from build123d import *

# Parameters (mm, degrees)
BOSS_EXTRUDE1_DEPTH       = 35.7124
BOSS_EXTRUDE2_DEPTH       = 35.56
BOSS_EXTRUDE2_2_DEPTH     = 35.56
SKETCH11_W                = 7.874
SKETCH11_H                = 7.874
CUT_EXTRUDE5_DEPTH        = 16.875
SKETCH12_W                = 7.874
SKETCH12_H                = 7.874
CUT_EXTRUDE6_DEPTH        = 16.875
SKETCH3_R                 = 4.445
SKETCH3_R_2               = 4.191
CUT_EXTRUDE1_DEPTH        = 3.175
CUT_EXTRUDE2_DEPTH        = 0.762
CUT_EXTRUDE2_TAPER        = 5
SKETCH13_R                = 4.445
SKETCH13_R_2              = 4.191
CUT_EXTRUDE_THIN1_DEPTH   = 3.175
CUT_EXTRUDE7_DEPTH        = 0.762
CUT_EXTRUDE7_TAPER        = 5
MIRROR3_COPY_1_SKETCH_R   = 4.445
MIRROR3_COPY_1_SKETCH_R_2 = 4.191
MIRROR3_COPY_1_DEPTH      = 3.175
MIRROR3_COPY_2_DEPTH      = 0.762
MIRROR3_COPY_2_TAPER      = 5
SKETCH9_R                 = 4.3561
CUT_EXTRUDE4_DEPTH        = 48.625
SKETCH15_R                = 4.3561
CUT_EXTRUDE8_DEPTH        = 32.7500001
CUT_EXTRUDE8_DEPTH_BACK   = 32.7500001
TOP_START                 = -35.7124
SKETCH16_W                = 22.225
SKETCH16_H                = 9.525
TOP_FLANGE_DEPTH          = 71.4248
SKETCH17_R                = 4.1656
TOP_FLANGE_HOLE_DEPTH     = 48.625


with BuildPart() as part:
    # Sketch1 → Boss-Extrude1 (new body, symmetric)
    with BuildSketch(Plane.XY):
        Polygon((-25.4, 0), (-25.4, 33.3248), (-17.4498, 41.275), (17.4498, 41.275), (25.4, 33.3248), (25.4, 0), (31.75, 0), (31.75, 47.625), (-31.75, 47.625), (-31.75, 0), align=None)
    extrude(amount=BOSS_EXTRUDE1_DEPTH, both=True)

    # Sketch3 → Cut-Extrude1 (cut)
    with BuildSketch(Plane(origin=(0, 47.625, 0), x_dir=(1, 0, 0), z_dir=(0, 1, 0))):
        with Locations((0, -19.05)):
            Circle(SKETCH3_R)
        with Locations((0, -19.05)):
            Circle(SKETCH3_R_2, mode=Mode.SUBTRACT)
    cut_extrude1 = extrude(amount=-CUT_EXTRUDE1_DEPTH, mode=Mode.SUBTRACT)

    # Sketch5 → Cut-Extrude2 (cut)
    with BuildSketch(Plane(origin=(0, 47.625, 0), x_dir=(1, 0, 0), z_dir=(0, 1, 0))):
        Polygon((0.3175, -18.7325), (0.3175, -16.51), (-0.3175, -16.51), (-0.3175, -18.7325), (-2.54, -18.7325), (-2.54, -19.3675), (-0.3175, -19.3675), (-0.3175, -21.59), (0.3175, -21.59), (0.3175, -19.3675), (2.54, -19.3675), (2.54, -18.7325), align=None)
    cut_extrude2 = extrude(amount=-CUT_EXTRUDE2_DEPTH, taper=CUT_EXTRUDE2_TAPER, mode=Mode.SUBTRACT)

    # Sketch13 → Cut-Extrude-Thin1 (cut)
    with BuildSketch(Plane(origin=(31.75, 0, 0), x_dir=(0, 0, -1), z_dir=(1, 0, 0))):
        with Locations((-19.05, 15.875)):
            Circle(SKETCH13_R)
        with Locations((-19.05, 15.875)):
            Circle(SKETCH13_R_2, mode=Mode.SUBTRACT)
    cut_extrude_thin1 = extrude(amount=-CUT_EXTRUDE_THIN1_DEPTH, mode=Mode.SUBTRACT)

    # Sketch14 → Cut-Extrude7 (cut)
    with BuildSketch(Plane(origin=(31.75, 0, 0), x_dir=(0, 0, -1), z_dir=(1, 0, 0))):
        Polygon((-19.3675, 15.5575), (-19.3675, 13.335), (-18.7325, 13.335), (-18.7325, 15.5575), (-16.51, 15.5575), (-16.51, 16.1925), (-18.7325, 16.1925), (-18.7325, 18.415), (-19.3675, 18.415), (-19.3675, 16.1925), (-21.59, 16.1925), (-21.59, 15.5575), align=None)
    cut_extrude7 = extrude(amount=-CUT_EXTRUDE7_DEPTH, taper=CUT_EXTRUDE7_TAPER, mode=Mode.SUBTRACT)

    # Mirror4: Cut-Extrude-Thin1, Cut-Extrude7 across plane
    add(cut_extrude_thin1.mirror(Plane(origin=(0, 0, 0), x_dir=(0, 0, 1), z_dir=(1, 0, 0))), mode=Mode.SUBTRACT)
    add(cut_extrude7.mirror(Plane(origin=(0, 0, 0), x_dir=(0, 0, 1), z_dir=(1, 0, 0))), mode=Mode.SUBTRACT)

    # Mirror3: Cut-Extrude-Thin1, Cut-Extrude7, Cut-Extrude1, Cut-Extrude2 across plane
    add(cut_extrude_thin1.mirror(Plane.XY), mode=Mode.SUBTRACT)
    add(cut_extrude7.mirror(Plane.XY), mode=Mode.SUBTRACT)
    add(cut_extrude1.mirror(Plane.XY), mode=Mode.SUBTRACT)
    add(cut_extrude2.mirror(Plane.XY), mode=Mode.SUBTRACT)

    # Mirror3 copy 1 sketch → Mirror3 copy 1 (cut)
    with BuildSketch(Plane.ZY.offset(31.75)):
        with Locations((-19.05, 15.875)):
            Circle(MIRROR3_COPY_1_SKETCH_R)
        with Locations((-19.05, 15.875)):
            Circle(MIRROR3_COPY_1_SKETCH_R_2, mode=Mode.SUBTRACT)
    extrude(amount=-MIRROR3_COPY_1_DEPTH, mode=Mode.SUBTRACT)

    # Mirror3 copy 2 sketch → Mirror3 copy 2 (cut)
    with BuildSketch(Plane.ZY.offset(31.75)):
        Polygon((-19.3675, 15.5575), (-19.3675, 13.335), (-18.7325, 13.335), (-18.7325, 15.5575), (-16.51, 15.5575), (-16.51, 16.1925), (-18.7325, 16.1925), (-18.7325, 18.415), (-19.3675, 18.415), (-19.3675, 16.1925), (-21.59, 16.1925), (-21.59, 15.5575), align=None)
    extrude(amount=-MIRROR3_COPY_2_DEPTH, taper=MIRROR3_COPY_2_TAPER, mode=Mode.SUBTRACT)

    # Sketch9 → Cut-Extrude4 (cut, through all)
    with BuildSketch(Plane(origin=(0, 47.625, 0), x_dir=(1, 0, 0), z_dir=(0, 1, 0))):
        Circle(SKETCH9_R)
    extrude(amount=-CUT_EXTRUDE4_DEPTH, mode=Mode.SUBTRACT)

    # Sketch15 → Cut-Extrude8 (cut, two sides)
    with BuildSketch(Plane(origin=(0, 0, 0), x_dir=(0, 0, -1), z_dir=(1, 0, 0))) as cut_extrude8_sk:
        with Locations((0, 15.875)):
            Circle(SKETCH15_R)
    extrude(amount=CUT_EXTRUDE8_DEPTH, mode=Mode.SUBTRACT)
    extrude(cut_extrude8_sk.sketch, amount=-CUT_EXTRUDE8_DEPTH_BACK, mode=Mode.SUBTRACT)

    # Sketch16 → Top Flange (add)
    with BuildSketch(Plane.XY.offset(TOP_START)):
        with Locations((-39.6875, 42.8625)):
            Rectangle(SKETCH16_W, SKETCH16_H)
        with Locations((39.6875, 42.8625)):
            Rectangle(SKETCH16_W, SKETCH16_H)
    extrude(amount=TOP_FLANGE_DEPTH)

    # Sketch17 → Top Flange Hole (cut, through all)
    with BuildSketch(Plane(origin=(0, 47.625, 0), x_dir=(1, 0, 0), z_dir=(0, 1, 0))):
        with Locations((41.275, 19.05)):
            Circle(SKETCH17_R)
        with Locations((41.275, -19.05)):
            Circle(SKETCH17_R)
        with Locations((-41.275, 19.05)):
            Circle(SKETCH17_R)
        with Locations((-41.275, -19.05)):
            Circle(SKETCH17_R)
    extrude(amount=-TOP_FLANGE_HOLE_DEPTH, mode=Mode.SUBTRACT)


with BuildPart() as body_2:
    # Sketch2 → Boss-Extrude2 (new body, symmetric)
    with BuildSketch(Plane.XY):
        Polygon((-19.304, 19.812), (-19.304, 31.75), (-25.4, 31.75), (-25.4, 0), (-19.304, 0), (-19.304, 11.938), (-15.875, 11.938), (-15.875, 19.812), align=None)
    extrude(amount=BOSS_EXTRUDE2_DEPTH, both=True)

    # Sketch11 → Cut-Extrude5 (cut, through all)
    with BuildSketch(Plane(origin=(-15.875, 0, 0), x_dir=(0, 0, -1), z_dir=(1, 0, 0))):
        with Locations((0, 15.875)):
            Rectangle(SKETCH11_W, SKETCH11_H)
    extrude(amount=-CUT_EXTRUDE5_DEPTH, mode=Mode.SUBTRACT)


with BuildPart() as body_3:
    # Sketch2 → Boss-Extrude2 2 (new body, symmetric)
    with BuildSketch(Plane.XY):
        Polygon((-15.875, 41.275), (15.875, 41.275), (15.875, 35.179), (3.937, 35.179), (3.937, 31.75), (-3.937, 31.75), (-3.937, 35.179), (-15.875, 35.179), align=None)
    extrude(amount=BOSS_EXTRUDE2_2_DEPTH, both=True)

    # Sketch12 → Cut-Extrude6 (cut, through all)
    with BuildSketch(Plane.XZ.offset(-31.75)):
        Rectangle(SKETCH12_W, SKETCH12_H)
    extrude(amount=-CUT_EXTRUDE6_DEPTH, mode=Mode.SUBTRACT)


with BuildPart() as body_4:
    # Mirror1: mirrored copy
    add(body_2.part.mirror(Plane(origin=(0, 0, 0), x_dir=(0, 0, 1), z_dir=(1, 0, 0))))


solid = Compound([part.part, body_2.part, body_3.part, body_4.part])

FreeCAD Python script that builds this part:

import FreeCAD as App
import Part
import Sketcher

V = App.Vector
Q = App.Units.Quantity


def add_polygon(sketch, points):
    """Adds a closed chain of lines whose ends are joined by coincident constraints."""
    first, n = sketch.GeometryCount, len(points)
    for a, b in zip(points, points[1:] + points[:1]):
        sketch.addGeometry(Part.LineSegment(App.Vector(*a, 0), App.Vector(*b, 0)), False)
    for i in range(n):
        sketch.addConstraint(Sketcher.Constraint("Coincident", first + i, 2, first + (i + 1) % n, 1))

doc = App.newDocument("Part")
body = doc.addObject("PartDesign::Body", "Body")

# Sketch on XY plane
sketch1 = body.newObject("Sketcher::SketchObject", "Sketch")
sketch1.AttachmentSupport = (doc.getObject("XY_Plane"), [""])
sketch1.MapMode = "FlatFace"
add_polygon(sketch1, [(-25.4, 0), (-25.4, 33.3248), (-17.4498, 41.275), (17.4498, 41.275), (25.4, 33.3248), (25.4, 0), (31.75, 0), (31.75, 47.625), (-31.75, 47.625), (-31.75, 0)])  # lines 0-9
sketch1.addConstraint([
    Sketcher.Constraint("Vertical", 0),
    Sketcher.Constraint("Horizontal", 2),
    Sketcher.Constraint("Vertical", 4),
    Sketcher.Constraint("Horizontal", 5),
    Sketcher.Constraint("Vertical", 6),
    Sketcher.Constraint("Horizontal", 7),
    Sketcher.Constraint("Vertical", 8),
    Sketcher.Constraint("Horizontal", 9),
    Sketcher.Constraint("Symmetric", 5, 2, 8, 2, -1, 1),
    Sketcher.Constraint("Symmetric", 0, 2, 3, 2, -2),
    Sketcher.Constraint("PointOnObject", 4, 2, -1),
    Sketcher.Constraint("Perpendicular", 1, 3),
    Sketcher.Constraint("Equal", 1, 3),
    Sketcher.Constraint("DistanceX", 7, 2, 7, 1, Q("2.5 in")),
    Sketcher.Constraint("DistanceX", 0, 2, -1, 1, Q("1 in")),
    Sketcher.Constraint("DistanceX", 2, 1, 2, 2, Q("1.374 in")),
    Sketcher.Constraint("DistanceY", 0, 1, 0, 2, Q("1.312 in")),
    Sketcher.Constraint("DistanceY", 6, 1, 6, 2, Q("1.875 in")),
])
pad1 = body.newObject("PartDesign::Pad", "Pad")
pad1.Profile = sketch1
pad1.Length = Q("2.812 in")
pad1.Midplane = True

# Sketch on XZ plane
sketch2 = body.newObject("Sketcher::SketchObject", "Sketch001")
sketch2.AttachmentSupport = (doc.getObject("XZ_Plane"), [""])
sketch2.MapMode = "FlatFace"
sketch2.AttachmentOffset = App.Placement(V(0, 0, -1.875 * 25.4), App.Rotation())
sketch2.addGeometry([
    Part.Circle(V(0, 19.05, 0), V(0, 0, 1), 4.445),
    Part.Circle(V(0, 19.05, 0), V(0, 0, 1), 4.191),
], False)
sketch2.addConstraint([
    Sketcher.Constraint("Coincident", 1, 3, 0, 3),
    Sketcher.Constraint("PointOnObject", 0, 3, -2),
    Sketcher.Constraint("Diameter", 0, Q("0.35 in")),
    Sketcher.Constraint("Diameter", 1, Q("0.33 in")),
    Sketcher.Constraint("DistanceY", -1, 1, 0, 3, Q("0.75 in")),
])
pocket1 = body.newObject("PartDesign::Pocket", "Pocket")
pocket1.Profile = sketch2
pocket1.Length = Q("0.125 in")
pocket1.Reversed = True

# Sketch on XZ plane
sketch3 = body.newObject("Sketcher::SketchObject", "Sketch002")
sketch3.AttachmentSupport = (doc.getObject("XZ_Plane"), [""])
sketch3.MapMode = "FlatFace"
sketch3.AttachmentOffset = App.Placement(V(0, 0, -1.875 * 25.4), App.Rotation())
add_polygon(sketch3, [(0.3175, 18.7325), (0.3175, 16.51), (-0.3175, 16.51), (-0.3175, 18.7325), (-2.54, 18.7325), (-2.54, 19.3675), (-0.3175, 19.3675), (-0.3175, 21.59), (0.3175, 21.59), (0.3175, 19.3675), (2.54, 19.3675), (2.54, 18.7325)])  # lines 0-11
sketch3.addConstraint([
    Sketcher.Constraint("Vertical", 0),
    Sketcher.Constraint("Horizontal", 1),
    Sketcher.Constraint("Vertical", 2),
    Sketcher.Constraint("Horizontal", 3),
    Sketcher.Constraint("Vertical", 4),
    Sketcher.Constraint("Horizontal", 5),
    Sketcher.Constraint("Vertical", 6),
    Sketcher.Constraint("Horizontal", 7),
    Sketcher.Constraint("Vertical", 8),
    Sketcher.Constraint("Horizontal", 9),
    Sketcher.Constraint("Vertical", 10),
    Sketcher.Constraint("Horizontal", 11),
    Sketcher.Constraint("Symmetric", 5, 2, 8, 2, -2),
    Sketcher.Constraint("Symmetric", 3, 2, 10, 2, -2),
    Sketcher.Constraint("Vertical", 2, 2, 5, 2),
    Sketcher.Constraint("Vertical", 0, 2, 7, 2),
    Sketcher.Constraint("Equal", 11, 0),
    Sketcher.Constraint("Equal", 7, 4),
    Sketcher.Constraint("Equal", 2, 6),
    Sketcher.Constraint("DistanceX", 3, 2, -1, 1, Q("0.1 in")),
    Sketcher.Constraint("DistanceX", 1, 2, 1, 1, Q("0.025 in")),
    Sketcher.Constraint("DistanceY", -1, 1, 0, 2, Q("0.65 in")),
])
pocket2 = body.newObject("PartDesign::Pocket", "Pocket001")
pocket2.Profile = sketch3
pocket2.Length = Q("0.03 in")
pocket2.Reversed = True
pocket2.TaperAngle = -5

# Sketch on YZ plane
sketch4 = body.newObject("Sketcher::SketchObject", "Sketch003")
sketch4.AttachmentSupport = (doc.getObject("YZ_Plane"), [""])
sketch4.MapMode = "FlatFace"
sketch4.AttachmentOffset = App.Placement(V(0, 0, 1.25 * 25.4), App.Rotation())
sketch4.addGeometry([
    Part.Circle(V(15.875, 19.05, 0), V(0, 0, 1), 4.445),
    Part.Circle(V(15.875, 19.05, 0), V(0, 0, 1), 4.191),
], False)
sketch4.addConstraint([
    Sketcher.Constraint("Coincident", 1, 3, 0, 3),
    Sketcher.Constraint("Diameter", 0, Q("0.35 in")),
    Sketcher.Constraint("Diameter", 1, Q("0.33 in")),
    Sketcher.Constraint("DistanceY", -1, 1, 0, 3, Q("0.75 in")),
    Sketcher.Constraint("DistanceX", -1, 1, 0, 3, Q("0.625 in")),
])
pocket3 = body.newObject("PartDesign::Pocket", "Pocket002")
pocket3.Profile = sketch4
pocket3.Length = Q("0.125 in")

# Sketch on YZ plane
sketch5 = body.newObject("Sketcher::SketchObject", "Sketch004")
sketch5.AttachmentSupport = (doc.getObject("YZ_Plane"), [""])
sketch5.MapMode = "FlatFace"
sketch5.AttachmentOffset = App.Placement(V(0, 0, 1.25 * 25.4), App.Rotation())
add_polygon(sketch5, [(15.5575, 19.3675), (13.335, 19.3675), (13.335, 18.7325), (15.5575, 18.7325), (15.5575, 16.51), (16.1925, 16.51), (16.1925, 18.7325), (18.415, 18.7325), (18.415, 19.3675), (16.1925, 19.3675), (16.1925, 21.59), (15.5575, 21.59)])  # lines 0-11
sketch5.addConstraint([
    Sketcher.Constraint("Horizontal", 0),
    Sketcher.Constraint("Vertical", 1),
    Sketcher.Constraint("Horizontal", 2),
    Sketcher.Constraint("Vertical", 3),
    Sketcher.Constraint("Horizontal", 4),
    Sketcher.Constraint("Vertical", 5),
    Sketcher.Constraint("Horizontal", 6),
    Sketcher.Constraint("Vertical", 7),
    Sketcher.Constraint("Horizontal", 8),
    Sketcher.Constraint("Vertical", 9),
    Sketcher.Constraint("Horizontal", 10),
    Sketcher.Constraint("Vertical", 11),
    Sketcher.Constraint("Horizontal", 2, 2, 5, 2),
    Sketcher.Constraint("Horizontal", 0, 2, 7, 2),
    Sketcher.Constraint("Vertical", 5, 2, 8, 2),
    Sketcher.Constraint("Vertical", 3, 2, 10, 2),
    Sketcher.Constraint("Equal", 2, 6),
    Sketcher.Constraint("Equal", 10, 1),
    Sketcher.Constraint("Equal", 8, 3),
    Sketcher.Constraint("Equal", 5, 9),
    Sketcher.Constraint("DistanceX", 1, 2, 6, 2, Q("0.2 in")),
    Sketcher.Constraint("DistanceX", 4, 1, 4, 2, Q("0.025 in")),
    Sketcher.Constraint("DistanceY", -1, 1, 3, 2, Q("0.65 in")),
    Sketcher.Constraint("DistanceX", -1, 1, 0, 2, Q("0.525 in")),
])
pocket4 = body.newObject("PartDesign::Pocket", "Pocket003")
pocket4.Profile = sketch5
pocket4.Length = Q("0.03 in")
pocket4.TaperAngle = -5
doc.recompute()

mirrored = body.newObject("PartDesign::Mirrored", "Mirrored")
mirrored.Originals = [pocket3, pocket4]
mirrored.MirrorPlane = (doc.getObject("YZ_Plane"), [""])
body.Tip = mirrored
doc.recompute()

mirrored2 = body.newObject("PartDesign::Mirrored", "Mirrored001")
mirrored2.Originals = [pocket3, pocket4, pocket1, pocket2]
mirrored2.MirrorPlane = (doc.getObject("XY_Plane"), [""])
body.Tip = mirrored2

# Sketch on YZ plane
sketch6 = body.newObject("Sketcher::SketchObject", "Sketch005")
sketch6.AttachmentSupport = (doc.getObject("YZ_Plane"), [""])
sketch6.MapMode = "FlatFace"
sketch6.AttachmentOffset = App.Placement(V(0, 0, -1.25 * 25.4), App.Rotation())
sketch6.addGeometry([
    Part.Circle(V(15.875, -19.05, 0), V(0, 0, 1), 4.445),
    Part.Circle(V(15.875, -19.05, 0), V(0, 0, 1), 4.191),
], False)
sketch6.addConstraint([
    Sketcher.Constraint("Coincident", 1, 3, 0, 3),
    Sketcher.Constraint("Diameter", 0, Q("0.35 in")),
    Sketcher.Constraint("Diameter", 1, Q("0.33 in")),
    Sketcher.Constraint("DistanceY", 0, 3, -1, 1, Q("0.75 in")),
    Sketcher.Constraint("DistanceX", -1, 1, 0, 3, Q("0.625 in")),
])
pocket5 = body.newObject("PartDesign::Pocket", "Pocket004")
pocket5.Profile = sketch6
pocket5.Length = Q("0.125 in")
pocket5.Reversed = True

# Sketch on YZ plane
sketch7 = body.newObject("Sketcher::SketchObject", "Sketch006")
sketch7.AttachmentSupport = (doc.getObject("YZ_Plane"), [""])
sketch7.MapMode = "FlatFace"
sketch7.AttachmentOffset = App.Placement(V(0, 0, -1.25 * 25.4), App.Rotation())
add_polygon(sketch7, [(15.5575, -19.3675), (13.335, -19.3675), (13.335, -18.7325), (15.5575, -18.7325), (15.5575, -16.51), (16.1925, -16.51), (16.1925, -18.7325), (18.415, -18.7325), (18.415, -19.3675), (16.1925, -19.3675), (16.1925, -21.59), (15.5575, -21.59)])  # lines 0-11
sketch7.addConstraint([
    Sketcher.Constraint("Horizontal", 0),
    Sketcher.Constraint("Vertical", 1),
    Sketcher.Constraint("Horizontal", 2),
    Sketcher.Constraint("Vertical", 3),
    Sketcher.Constraint("Horizontal", 4),
    Sketcher.Constraint("Vertical", 5),
    Sketcher.Constraint("Horizontal", 6),
    Sketcher.Constraint("Vertical", 7),
    Sketcher.Constraint("Horizontal", 8),
    Sketcher.Constraint("Vertical", 9),
    Sketcher.Constraint("Horizontal", 10),
    Sketcher.Constraint("Vertical", 11),
    Sketcher.Constraint("Horizontal", 2, 2, 5, 2),
    Sketcher.Constraint("Horizontal", 0, 2, 7, 2),
    Sketcher.Constraint("Vertical", 5, 2, 8, 2),
    Sketcher.Constraint("Vertical", 3, 2, 10, 2),
    Sketcher.Constraint("Equal", 2, 6),
    Sketcher.Constraint("Equal", 10, 1),
    Sketcher.Constraint("Equal", 8, 3),
    Sketcher.Constraint("Equal", 5, 9),
    Sketcher.Constraint("DistanceX", 1, 2, 6, 2, Q("0.2 in")),
    Sketcher.Constraint("DistanceX", 4, 1, 4, 2, Q("0.025 in")),
    Sketcher.Constraint("DistanceY", 3, 2, -1, 1, Q("0.65 in")),
    Sketcher.Constraint("DistanceX", -1, 1, 0, 2, Q("0.525 in")),
])
pocket6 = body.newObject("PartDesign::Pocket", "Pocket005")
pocket6.Profile = sketch7
pocket6.Length = Q("0.03 in")
pocket6.Reversed = True
pocket6.TaperAngle = -5

# Sketch on XZ plane
sketch8 = body.newObject("Sketcher::SketchObject", "Sketch007")
sketch8.AttachmentSupport = (doc.getObject("XZ_Plane"), [""])
sketch8.MapMode = "FlatFace"
sketch8.AttachmentOffset = App.Placement(V(0, 0, -1.875 * 25.4), App.Rotation())
sketch8.addGeometry(Part.Circle(V(0, 0, 0), V(0, 0, 1), 4.3561), False)
sketch8.addConstraint([
    Sketcher.Constraint("Coincident", 0, 3, -1, 1),
    Sketcher.Constraint("Diameter", 0, Q("0.343 in")),
])
pocket7 = body.newObject("PartDesign::Pocket", "Pocket006")
pocket7.Profile = sketch8
pocket7.Type = "ThroughAll"
pocket7.Reversed = True

# Sketch on YZ plane
sketch9 = body.newObject("Sketcher::SketchObject", "Sketch008")
sketch9.AttachmentSupport = (doc.getObject("YZ_Plane"), [""])
sketch9.MapMode = "FlatFace"
sketch9.addGeometry(Part.Circle(V(15.875, 0, 0), V(0, 0, 1), 4.3561), False)
sketch9.addConstraint([
    Sketcher.Constraint("PointOnObject", 0, 3, -1),
    Sketcher.Constraint("Diameter", 0, Q("0.343 in")),
    Sketcher.Constraint("DistanceX", -1, 1, 0, 3, Q("0.625 in")),
])
pocket8 = body.newObject("PartDesign::Pocket", "Pocket007")
pocket8.Profile = sketch9
pocket8.Type = "ThroughAll"
pocket8.Midplane = True

# Sketch on XY plane
sketch10 = body.newObject("Sketcher::SketchObject", "Sketch009")
sketch10.AttachmentSupport = (doc.getObject("XY_Plane"), [""])
sketch10.MapMode = "FlatFace"
sketch10.AttachmentOffset = App.Placement(V(0, 0, -1.406 * 25.4), App.Rotation())
add_polygon(sketch10, [(-50.8, 47.625), (-50.8, 38.1), (-28.575, 38.1), (-28.575, 47.625)])  # lines 0-3
add_polygon(sketch10, [(28.575, 47.625), (28.575, 38.1), (50.8, 38.1), (50.8, 47.625)])  # lines 4-7
sketch10.addConstraint([
    Sketcher.Constraint("Vertical", 0),
    Sketcher.Constraint("Horizontal", 1),
    Sketcher.Constraint("Vertical", 2),
    Sketcher.Constraint("Horizontal", 3),
    Sketcher.Constraint("Vertical", 4),
    Sketcher.Constraint("Horizontal", 5),
    Sketcher.Constraint("Vertical", 6),
    Sketcher.Constraint("Horizontal", 7),
    Sketcher.Constraint("Symmetric", 1, 2, 4, 2, -2),
    Sketcher.Constraint("Symmetric", 3, 2, 6, 2, -2),
    Sketcher.Constraint("DistanceX", 0, 2, -1, 1, Q("2 in")),
    Sketcher.Constraint("DistanceY", -1, 1, 0, 2, Q("1.5 in")),
    Sketcher.Constraint("DistanceX", 1, 1, 1, 2, Q("0.875 in")),
    Sketcher.Constraint("DistanceY", 0, 2, 0, 1, Q("0.375 in")),
])
pad2 = body.newObject("PartDesign::Pad", "Pad001")
pad2.Profile = sketch10
pad2.Length = Q("2.812 in")

# Sketch on XZ plane
sketch11 = body.newObject("Sketcher::SketchObject", "Sketch010")
sketch11.AttachmentSupport = (doc.getObject("XZ_Plane"), [""])
sketch11.MapMode = "FlatFace"
sketch11.AttachmentOffset = App.Placement(V(0, 0, -1.875 * 25.4), App.Rotation())
sketch11.addGeometry([
    Part.Circle(V(41.275, -19.05, 0), V(0, 0, 1), 4.1656),
    Part.Circle(V(41.275, 19.05, 0), V(0, 0, 1), 4.1656),
    Part.Circle(V(-41.275, -19.05, 0), V(0, 0, 1), 4.1656),
    Part.Circle(V(-41.275, 19.05, 0), V(0, 0, 1), 4.1656),
], False)
sketch11.addConstraint([
    Sketcher.Constraint("Equal", 0, 1),
    Sketcher.Constraint("Equal", 1, 2),
    Sketcher.Constraint("Equal", 2, 3),
    Sketcher.Constraint("Symmetric", 1, 3, 2, 3, -1, 1),
    Sketcher.Constraint("Symmetric", 0, 3, 3, 3, -1, 1),
    Sketcher.Constraint("Symmetric", 0, 3, 2, 3, -2),
    Sketcher.Constraint("Diameter", 0, Q("0.328 in")),
    Sketcher.Constraint("DistanceY", 0, 3, 1, 3, Q("1.5 in")),
    Sketcher.Constraint("DistanceX", 2, 3, 0, 3, Q("3.25 in")),
])
pocket9 = body.newObject("PartDesign::Pocket", "Pocket008")
pocket9.Profile = sketch11
pocket9.Type = "ThroughAll"
pocket9.Reversed = True
body2 = doc.addObject("PartDesign::Body", "Body001")

# Sketch on XY plane
sketch12 = body2.newObject("Sketcher::SketchObject", "Sketch011")
sketch12.AttachmentSupport = (doc.getObject("XY_Plane001"), [""])
sketch12.MapMode = "FlatFace"
add_polygon(sketch12, [(-19.304, 19.812), (-19.304, 31.75), (-25.4, 31.75), (-25.4, 0), (-19.304, 0), (-19.304, 11.938), (-15.875, 11.938), (-15.875, 19.812)])  # lines 0-7
sketch12.addConstraint([
    Sketcher.Constraint("Vertical", 0),
    Sketcher.Constraint("Horizontal", 1),
    Sketcher.Constraint("Vertical", 2),
    Sketcher.Constraint("Horizontal", 3),
    Sketcher.Constraint("Vertical", 4),
    Sketcher.Constraint("Horizontal", 5),
    Sketcher.Constraint("Vertical", 6),
    Sketcher.Constraint("Horizontal", 7),
    Sketcher.Constraint("PointOnObject", 2, 2, -1),
    Sketcher.Constraint("Vertical", 0, 2, 3, 2),
    Sketcher.Constraint("Equal", 0, 4),
    Sketcher.Constraint("DistanceX", 1, 2, -1, 1, Q("1 in")),
    Sketcher.Constraint("DistanceX", 1, 2, 1, 1, Q("0.24 in")),
    Sketcher.Constraint("DistanceY", 0, 1, 0, 2, Q("0.47 in")),
    Sketcher.Constraint("DistanceY", 2, 2, 2, 1, Q("1.25 in")),
    Sketcher.Constraint("DistanceX", 5, 1, 5, 2, Q("0.135 in")),
])
pad3 = body2.newObject("PartDesign::Pad", "Pad002")
pad3.Profile = sketch12
pad3.Length = Q("2.8 in")
pad3.Midplane = True

# Sketch on YZ plane
sketch13 = body2.newObject("Sketcher::SketchObject", "Sketch012")
sketch13.AttachmentSupport = (doc.getObject("YZ_Plane001"), [""])
sketch13.MapMode = "FlatFace"
sketch13.AttachmentOffset = App.Placement(V(0, 0, -0.625 * 25.4), App.Rotation())
add_polygon(sketch13, [(19.812, 3.937), (11.938, 3.937), (11.938, -3.937), (19.812, -3.937)])  # lines 0-3
sketch13.addConstraint([
    Sketcher.Constraint("Horizontal", 0),
    Sketcher.Constraint("Vertical", 1),
    Sketcher.Constraint("Horizontal", 2),
    Sketcher.Constraint("Vertical", 3),
    Sketcher.Constraint("Equal", 2, 1),
    Sketcher.Constraint("DistanceX", 0, 2, 0, 1, Q("0.31 in")),
    Sketcher.Constraint("DistanceX", -1, 1, 0, 2, Q("0.47 in")),
    Sketcher.Constraint("DistanceY", -1, 1, 0, 2, Q("0.155 in")),
])
pocket10 = body2.newObject("PartDesign::Pocket", "Pocket009")
pocket10.Profile = sketch13
pocket10.Type = "ThroughAll"
body3 = doc.addObject("PartDesign::Body", "Body002")

# Sketch on XY plane
sketch14 = body3.newObject("Sketcher::SketchObject", "Sketch013")
sketch14.AttachmentSupport = (doc.getObject("XY_Plane002"), [""])
sketch14.MapMode = "FlatFace"
add_polygon(sketch14, [(15.875, 41.275), (-15.875, 41.275), (-15.875, 35.179), (-3.937, 35.179), (-3.937, 31.75), (3.937, 31.75), (3.937, 35.179), (15.875, 35.179)])  # lines 0-7
sketch14.addConstraint([
    Sketcher.Constraint("Horizontal", 0),
    Sketcher.Constraint("Vertical", 1),
    Sketcher.Constraint("Horizontal", 2),
    Sketcher.Constraint("Vertical", 3),
    Sketcher.Constraint("Horizontal", 4),
    Sketcher.Constraint("Vertical", 5),
    Sketcher.Constraint("Horizontal", 6),
    Sketcher.Constraint("Vertical", 7),
    Sketcher.Constraint("Symmetric", 2, 2, 5, 2, -2),
    Sketcher.Constraint("Equal", 2, 6),
    Sketcher.Constraint("DistanceX", 0, 2, 0, 1, Q("1.25 in")),
    Sketcher.Constraint("DistanceX", 2, 1, 2, 2, Q("0.47 in")),
    Sketcher.Constraint("DistanceY", 1, 2, 1, 1, Q("0.24 in")),
    Sketcher.Constraint("DistanceY", 3, 2, 3, 1, Q("0.135 in")),
    Sketcher.Constraint("DistanceY", -1, 1, 3, 2, Q("1.25 in")),
])
pad4 = body3.newObject("PartDesign::Pad", "Pad003")
pad4.Profile = sketch14
pad4.Length = Q("2.8 in")
pad4.Midplane = True

# Sketch on XZ plane
sketch15 = body3.newObject("Sketcher::SketchObject", "Sketch014")
sketch15.AttachmentSupport = (doc.getObject("XZ_Plane002"), [""])
sketch15.MapMode = "FlatFace"
sketch15.AttachmentOffset = App.Placement(V(0, 0, -1.25 * 25.4), App.Rotation())
add_polygon(sketch15, [(-3.937, 3.937), (-3.937, -3.937), (3.937, -3.937), (3.937, 3.937)])  # lines 0-3
sketch15.addConstraint([
    Sketcher.Constraint("Vertical", 0),
    Sketcher.Constraint("Horizontal", 1),
    Sketcher.Constraint("Vertical", 2),
    Sketcher.Constraint("Horizontal", 3),
    Sketcher.Constraint("Symmetric", 0, 2, 2, 2, -1, 1),
    Sketcher.Constraint("Equal", 3, 0),
    Sketcher.Constraint("DistanceX", 1, 1, 1, 2, Q("0.31 in")),
])
pocket11 = body3.newObject("PartDesign::Pocket", "Pocket010")
pocket11.Profile = sketch15
pocket11.Type = "ThroughAll"
body4 = doc.addObject("PartDesign::Body", "Body003")
doc.recompute()

mirroring = doc.addObject("Part::Mirroring", "Mirroring")
mirroring.Source = body2
mirroring.Base = V(0, 0, 0)
mirroring.Normal = V(1, 0, 0)
body4.BaseFeature = mirroring
doc.recompute()
mirroring.Visibility = False

doc.recompute()
